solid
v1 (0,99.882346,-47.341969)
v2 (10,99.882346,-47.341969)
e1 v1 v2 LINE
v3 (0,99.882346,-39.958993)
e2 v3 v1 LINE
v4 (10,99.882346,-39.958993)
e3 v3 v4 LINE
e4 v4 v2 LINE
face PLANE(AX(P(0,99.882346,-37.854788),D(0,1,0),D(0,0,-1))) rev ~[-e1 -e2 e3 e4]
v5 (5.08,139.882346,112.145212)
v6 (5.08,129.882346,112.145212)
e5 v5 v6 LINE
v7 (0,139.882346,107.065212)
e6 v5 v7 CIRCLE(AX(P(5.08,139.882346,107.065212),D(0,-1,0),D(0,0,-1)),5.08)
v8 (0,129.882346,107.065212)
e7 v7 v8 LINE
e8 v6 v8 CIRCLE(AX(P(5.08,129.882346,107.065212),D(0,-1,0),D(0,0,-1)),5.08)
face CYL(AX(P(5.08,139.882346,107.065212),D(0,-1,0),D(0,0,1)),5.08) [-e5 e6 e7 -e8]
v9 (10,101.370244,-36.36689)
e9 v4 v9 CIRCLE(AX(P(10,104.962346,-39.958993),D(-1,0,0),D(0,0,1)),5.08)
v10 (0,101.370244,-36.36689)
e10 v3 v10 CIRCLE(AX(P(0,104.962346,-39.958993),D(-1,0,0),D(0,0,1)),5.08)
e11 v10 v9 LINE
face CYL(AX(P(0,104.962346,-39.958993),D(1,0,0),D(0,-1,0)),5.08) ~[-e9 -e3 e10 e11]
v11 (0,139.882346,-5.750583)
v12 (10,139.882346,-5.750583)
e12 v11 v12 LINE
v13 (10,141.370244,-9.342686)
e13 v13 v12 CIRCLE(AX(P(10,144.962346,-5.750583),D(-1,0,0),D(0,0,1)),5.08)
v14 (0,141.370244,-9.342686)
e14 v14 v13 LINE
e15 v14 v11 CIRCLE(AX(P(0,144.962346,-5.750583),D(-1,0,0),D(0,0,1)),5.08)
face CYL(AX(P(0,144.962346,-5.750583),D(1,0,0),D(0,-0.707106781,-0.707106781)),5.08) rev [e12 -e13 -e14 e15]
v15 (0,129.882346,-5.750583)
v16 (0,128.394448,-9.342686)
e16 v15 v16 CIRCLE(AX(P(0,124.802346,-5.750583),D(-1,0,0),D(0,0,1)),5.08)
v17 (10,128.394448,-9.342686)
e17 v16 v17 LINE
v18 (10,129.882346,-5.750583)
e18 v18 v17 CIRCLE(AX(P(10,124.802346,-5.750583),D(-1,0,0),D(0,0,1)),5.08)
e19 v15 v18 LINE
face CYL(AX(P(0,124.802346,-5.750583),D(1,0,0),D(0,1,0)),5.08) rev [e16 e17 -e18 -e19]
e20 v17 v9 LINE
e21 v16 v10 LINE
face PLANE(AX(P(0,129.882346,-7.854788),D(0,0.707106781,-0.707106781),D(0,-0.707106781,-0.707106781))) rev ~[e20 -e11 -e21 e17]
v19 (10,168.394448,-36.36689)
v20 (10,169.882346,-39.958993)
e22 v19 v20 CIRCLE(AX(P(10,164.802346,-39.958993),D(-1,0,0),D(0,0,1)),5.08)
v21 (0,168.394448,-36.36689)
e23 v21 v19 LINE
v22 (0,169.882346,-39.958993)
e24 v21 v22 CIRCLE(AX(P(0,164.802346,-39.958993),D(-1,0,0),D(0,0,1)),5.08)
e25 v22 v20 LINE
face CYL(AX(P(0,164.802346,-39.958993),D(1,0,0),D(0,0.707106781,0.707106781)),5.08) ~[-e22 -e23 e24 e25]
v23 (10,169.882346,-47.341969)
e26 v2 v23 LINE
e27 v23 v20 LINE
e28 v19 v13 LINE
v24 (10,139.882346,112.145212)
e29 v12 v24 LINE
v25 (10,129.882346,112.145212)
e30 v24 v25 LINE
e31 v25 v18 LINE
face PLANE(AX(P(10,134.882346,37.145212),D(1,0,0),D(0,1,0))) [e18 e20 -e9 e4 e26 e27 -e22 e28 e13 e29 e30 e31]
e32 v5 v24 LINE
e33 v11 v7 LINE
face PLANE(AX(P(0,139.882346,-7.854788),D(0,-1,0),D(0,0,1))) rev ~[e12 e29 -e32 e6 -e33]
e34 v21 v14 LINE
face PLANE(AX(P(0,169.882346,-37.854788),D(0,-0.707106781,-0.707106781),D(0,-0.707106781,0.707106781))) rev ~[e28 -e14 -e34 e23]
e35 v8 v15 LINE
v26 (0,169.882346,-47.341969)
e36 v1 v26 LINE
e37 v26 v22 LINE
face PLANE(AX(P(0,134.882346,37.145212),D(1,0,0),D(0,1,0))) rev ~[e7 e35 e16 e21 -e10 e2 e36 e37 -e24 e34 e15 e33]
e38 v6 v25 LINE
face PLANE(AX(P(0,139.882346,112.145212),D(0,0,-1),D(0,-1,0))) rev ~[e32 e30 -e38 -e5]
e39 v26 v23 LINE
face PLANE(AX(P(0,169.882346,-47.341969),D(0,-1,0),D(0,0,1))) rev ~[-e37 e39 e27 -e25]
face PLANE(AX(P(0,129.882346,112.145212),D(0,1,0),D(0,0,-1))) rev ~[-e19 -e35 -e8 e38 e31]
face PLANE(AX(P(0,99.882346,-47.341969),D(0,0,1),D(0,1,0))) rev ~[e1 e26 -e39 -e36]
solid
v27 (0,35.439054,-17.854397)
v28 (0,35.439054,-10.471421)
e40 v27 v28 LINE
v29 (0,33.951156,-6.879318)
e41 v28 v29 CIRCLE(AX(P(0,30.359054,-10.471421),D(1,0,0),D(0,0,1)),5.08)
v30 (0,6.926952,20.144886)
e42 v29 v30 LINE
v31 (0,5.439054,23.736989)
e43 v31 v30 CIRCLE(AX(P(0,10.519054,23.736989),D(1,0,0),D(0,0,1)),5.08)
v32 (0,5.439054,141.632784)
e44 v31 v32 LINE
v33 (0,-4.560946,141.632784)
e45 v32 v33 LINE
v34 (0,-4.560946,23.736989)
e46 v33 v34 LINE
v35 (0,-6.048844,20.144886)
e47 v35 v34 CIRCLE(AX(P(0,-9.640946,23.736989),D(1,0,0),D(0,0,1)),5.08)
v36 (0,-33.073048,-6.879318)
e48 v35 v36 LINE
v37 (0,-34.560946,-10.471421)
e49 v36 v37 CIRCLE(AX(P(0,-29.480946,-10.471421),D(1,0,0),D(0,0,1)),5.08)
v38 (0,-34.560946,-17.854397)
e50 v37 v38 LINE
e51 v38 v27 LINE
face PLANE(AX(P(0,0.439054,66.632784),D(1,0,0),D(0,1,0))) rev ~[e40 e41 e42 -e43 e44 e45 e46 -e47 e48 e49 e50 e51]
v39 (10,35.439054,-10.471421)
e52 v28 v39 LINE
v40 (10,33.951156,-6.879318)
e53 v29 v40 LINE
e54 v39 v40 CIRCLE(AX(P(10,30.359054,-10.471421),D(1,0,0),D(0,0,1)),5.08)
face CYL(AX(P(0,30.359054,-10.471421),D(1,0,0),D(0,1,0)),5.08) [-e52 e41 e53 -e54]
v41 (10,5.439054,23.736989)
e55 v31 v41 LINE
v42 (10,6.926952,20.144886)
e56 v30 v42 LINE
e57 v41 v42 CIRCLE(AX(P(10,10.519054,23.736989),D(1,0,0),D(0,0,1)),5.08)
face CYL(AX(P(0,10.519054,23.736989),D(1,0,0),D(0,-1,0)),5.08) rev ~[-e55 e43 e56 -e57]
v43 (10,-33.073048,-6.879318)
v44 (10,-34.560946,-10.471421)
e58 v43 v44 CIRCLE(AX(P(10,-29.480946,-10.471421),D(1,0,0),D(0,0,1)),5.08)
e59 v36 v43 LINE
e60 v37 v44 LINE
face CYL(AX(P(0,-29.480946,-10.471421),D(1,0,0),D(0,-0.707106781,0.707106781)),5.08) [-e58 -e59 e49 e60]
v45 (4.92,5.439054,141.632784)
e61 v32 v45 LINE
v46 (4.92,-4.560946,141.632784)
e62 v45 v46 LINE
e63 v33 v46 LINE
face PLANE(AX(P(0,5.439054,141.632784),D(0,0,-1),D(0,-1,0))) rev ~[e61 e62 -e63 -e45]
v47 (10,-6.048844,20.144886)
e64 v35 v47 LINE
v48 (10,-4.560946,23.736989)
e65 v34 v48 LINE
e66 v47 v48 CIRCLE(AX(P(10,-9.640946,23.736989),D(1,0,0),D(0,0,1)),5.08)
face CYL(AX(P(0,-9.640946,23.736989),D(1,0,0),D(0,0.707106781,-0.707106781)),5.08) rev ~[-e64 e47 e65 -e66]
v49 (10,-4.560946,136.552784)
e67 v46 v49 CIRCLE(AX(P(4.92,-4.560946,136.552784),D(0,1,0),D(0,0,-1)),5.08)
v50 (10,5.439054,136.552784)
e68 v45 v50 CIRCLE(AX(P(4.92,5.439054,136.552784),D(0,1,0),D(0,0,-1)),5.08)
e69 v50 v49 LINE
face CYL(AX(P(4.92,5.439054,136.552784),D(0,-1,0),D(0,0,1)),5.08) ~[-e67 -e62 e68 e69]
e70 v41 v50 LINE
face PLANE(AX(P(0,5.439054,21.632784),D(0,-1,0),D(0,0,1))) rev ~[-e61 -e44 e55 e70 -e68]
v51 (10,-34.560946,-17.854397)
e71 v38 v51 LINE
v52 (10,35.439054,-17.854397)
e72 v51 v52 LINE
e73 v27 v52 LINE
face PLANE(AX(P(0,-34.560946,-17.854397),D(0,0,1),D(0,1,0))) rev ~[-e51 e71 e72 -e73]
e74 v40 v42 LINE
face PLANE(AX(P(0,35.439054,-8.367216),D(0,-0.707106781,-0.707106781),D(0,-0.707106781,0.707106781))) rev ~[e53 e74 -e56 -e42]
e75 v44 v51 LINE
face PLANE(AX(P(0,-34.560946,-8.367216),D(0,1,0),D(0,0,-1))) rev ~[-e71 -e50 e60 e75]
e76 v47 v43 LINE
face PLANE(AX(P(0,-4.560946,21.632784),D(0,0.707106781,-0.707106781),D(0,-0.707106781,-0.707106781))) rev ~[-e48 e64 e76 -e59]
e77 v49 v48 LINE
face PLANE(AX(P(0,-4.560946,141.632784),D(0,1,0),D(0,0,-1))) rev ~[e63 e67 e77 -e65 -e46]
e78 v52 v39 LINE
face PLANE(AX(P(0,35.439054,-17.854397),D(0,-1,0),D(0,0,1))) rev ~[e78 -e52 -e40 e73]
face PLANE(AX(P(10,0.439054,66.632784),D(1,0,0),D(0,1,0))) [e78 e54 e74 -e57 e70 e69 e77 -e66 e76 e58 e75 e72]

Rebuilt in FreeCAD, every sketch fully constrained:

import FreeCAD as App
import Part
import Sketcher
from FreeCAD import Vector


def edges_at(feature, points):
    """Names of the edges that pass closest to the given points."""
    edges = feature.Shape.Edges
    near = lambda p: min(range(len(edges)), key=lambda i: edges[i].distToShape(Part.Vertex(*p))[0])
    return sorted({f"Edge{near(p) + 1}" for p in points})


def add_polygon(sketch, points):
    """Adds a closed chain of lines whose ends are joined by coincident constraints."""
    first, n = sketch.GeometryCount, len(points)
    for a, b in zip(points, points[1:] + points[:1]):
        sketch.addGeometry(Part.LineSegment(App.Vector(*a, 0), App.Vector(*b, 0)), False)
    for i in range(n):
        sketch.addConstraint(Sketcher.Constraint("Coincident", first + i, 2, first + (i + 1) % n, 1))

doc = App.newDocument("Part")
body = doc.addObject("PartDesign::Body", "Body")

# Sketch on YZ plane
sketch1 = body.newObject("Sketcher::SketchObject", "Sketch")
sketch1.AttachmentSupport = (doc.getObject("YZ_Plane"), [""])
sketch1.MapMode = "FlatFace"
add_polygon(sketch1, [(5, 142), (-5, 142), (-5, 22), (-35, -8), (-35, -18), (35, -18), (35, -8), (5, 22)])  # lines 0-7
sketch1.addConstraint(Sketcher.Constraint("Horizontal", 0))
sketch1.addConstraint(Sketcher.Constraint("Vertical", 1))
sketch1.addConstraint(Sketcher.Constraint("Vertical", 3))
sketch1.addConstraint(Sketcher.Constraint("Horizontal", 4))
sketch1.addConstraint(Sketcher.Constraint("Vertical", 5))
sketch1.addConstraint(Sketcher.Constraint("Vertical", 7))
sketch1.addConstraint(Sketcher.Constraint("Perpendicular", 2, 6))
sketch1.addConstraint(Sketcher.Constraint("Horizontal", 2, 2, 5, 2))
sketch1.addConstraint(Sketcher.Constraint("Horizontal", 1, 2, 6, 2))
sketch1.addConstraint(Sketcher.Constraint("Equal", 2, 6))
sketch1.addConstraint(Sketcher.Constraint("DistanceX", 0, 2, 0, 1, 10.0))
sketch1.addConstraint(Sketcher.Constraint("DistanceX", 4, 1, 4, 2, 70.0))
sketch1.addConstraint(Sketcher.Constraint("DistanceY", 1, 2, 1, 1, 120.0))
sketch1.addConstraint(Sketcher.Constraint("DistanceY", 3, 2, 3, 1, 9.487181))
sketch1.addConstraint(Sketcher.Constraint("DistanceX", 0, 2, -1, 1, 4.560946))
sketch1.addConstraint(Sketcher.Constraint("DistanceY", -1, 1, 0, 2, 141.632784))
pad1 = body.newObject("PartDesign::Pad", "Pad")
pad1.Profile = sketch1
pad1.Length = 10
doc.recompute()

fillet = body.newObject("PartDesign::Fillet", "Fillet")
fillet.Base = (pad1, edges_at(pad1, [(10, 0.439, 141.633)]))
fillet.Radius = 5.08
doc.recompute()

fillet2 = body.newObject("PartDesign::Fillet", "Fillet001")
fillet2.Base = (fillet, edges_at(fillet, [(5, -34.561, -8.367)]))
fillet2.Radius = 5.08
doc.recompute()

fillet3 = body.newObject("PartDesign::Fillet", "Fillet002")
fillet3.Base = (fillet2, edges_at(fillet2, [(5, 35.439, -8.367)]))
fillet3.Radius = 5.08
doc.recompute()

fillet4 = body.newObject("PartDesign::Fillet", "Fillet003")
fillet4.Base = (fillet3, edges_at(fillet3, [(5, -4.561, 21.633)]))
fillet4.Radius = 5.08
doc.recompute()

fillet5 = body.newObject("PartDesign::Fillet", "Fillet004")
fillet5.Base = (fillet4, edges_at(fillet4, [(5, 5.439, 21.633)]))
fillet5.Radius = 5.08
body2 = doc.addObject("PartDesign::Body", "Body001")

# Sketch on YZ plane
sketch2 = body2.newObject("Sketcher::SketchObject", "Sketch001")
sketch2.AttachmentSupport = (doc.getObject("YZ_Plane001"), [""])
sketch2.MapMode = "FlatFace"
add_polygon(sketch2, [(140, 112), (130, 112), (130, -8), (100, -38), (100, -47), (170, -47), (170, -38), (140, -8)])  # lines 0-7
sketch2.addConstraint(Sketcher.Constraint("Horizontal", 0))
sketch2.addConstraint(Sketcher.Constraint("Vertical", 1))
sketch2.addConstraint(Sketcher.Constraint("Vertical", 3))
sketch2.addConstraint(Sketcher.Constraint("Horizontal", 4))
sketch2.addConstraint(Sketcher.Constraint("Vertical", 5))
sketch2.addConstraint(Sketcher.Constraint("Vertical", 7))
sketch2.addConstraint(Sketcher.Constraint("Perpendicular", 2, 6))
sketch2.addConstraint(Sketcher.Constraint("Horizontal", 2, 2, 5, 2))
sketch2.addConstraint(Sketcher.Constraint("Horizontal", 1, 2, 6, 2))
sketch2.addConstraint(Sketcher.Constraint("Equal", 2, 6))
sketch2.addConstraint(Sketcher.Constraint("DistanceX", 0, 2, 0, 1, 10.0))
sketch2.addConstraint(Sketcher.Constraint("DistanceX", 4, 1, 4, 2, 70.0))
sketch2.addConstraint(Sketcher.Constraint("DistanceY", 1, 2, 1, 1, 120.0))
sketch2.addConstraint(Sketcher.Constraint("DistanceY", 3, 2, 3, 1, 9.487181))
sketch2.addConstraint(Sketcher.Constraint("DistanceY", -1, 1, 0, 2, 112.145212))
sketch2.addConstraint(Sketcher.Constraint("DistanceX", -1, 1, 0, 2, 129.882346))
pad2 = body2.newObject("PartDesign::Pad", "Pad001")
pad2.Profile = sketch2
pad2.Length = 10
doc.recompute()

fillet6 = body2.newObject("PartDesign::Fillet", "Fillet005")
fillet6.Base = (pad2, edges_at(pad2, [(0, 134.882, 112.145)]))
fillet6.Radius = 5.08
doc.recompute()

fillet7 = body2.newObject("PartDesign::Fillet", "Fillet006")
fillet7.Base = (fillet6, edges_at(fillet6, [(5, 169.882, -37.855)]))
fillet7.Radius = 5.08
doc.recompute()

fillet8 = body2.newObject("PartDesign::Fillet", "Fillet007")
fillet8.Base = (fillet7, edges_at(fillet7, [(5, 99.882, -37.855)]))
fillet8.Radius = 5.08
doc.recompute()

fillet9 = body2.newObject("PartDesign::Fillet", "Fillet008")
fillet9.Base = (fillet8, edges_at(fillet8, [(5, 139.882, -7.855)]))
fillet9.Radius = 5.08
doc.recompute()

fillet10 = body2.newObject("PartDesign::Fillet", "Fillet009")
fillet10.Base = (fillet9, edges_at(fillet9, [(5, 129.882, -7.855)]))
fillet10.Radius = 5.08

doc.recompute()
